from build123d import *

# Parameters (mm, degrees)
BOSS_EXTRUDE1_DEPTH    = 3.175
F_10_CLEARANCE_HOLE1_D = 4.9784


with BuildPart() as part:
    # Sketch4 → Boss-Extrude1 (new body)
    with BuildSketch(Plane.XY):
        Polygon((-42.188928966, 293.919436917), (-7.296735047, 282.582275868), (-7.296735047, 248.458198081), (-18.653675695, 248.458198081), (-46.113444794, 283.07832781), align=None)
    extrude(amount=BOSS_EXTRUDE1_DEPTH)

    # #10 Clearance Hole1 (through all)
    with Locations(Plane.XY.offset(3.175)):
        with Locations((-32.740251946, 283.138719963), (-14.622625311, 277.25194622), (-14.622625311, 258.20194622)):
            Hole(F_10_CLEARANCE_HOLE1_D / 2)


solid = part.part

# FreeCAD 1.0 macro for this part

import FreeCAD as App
import Part
import Sketcher
Q = App.Units.Quantity


def add_polygon(sketch, points):
    """Adds a closed chain of lines whose ends are joined by coincident constraints."""
    first, n = sketch.GeometryCount, len(points)
    for a, b in zip(points, points[1:] + points[:1]):
        sketch.addGeometry(Part.LineSegment(App.Vector(*a, 0), App.Vector(*b, 0)), False)
    for i in range(n):
        sketch.addConstraint(Sketcher.Constraint("Coincident", first + i, 2, first + (i + 1) % n, 1))

doc = App.newDocument("Part")
params = doc.addObject("Spreadsheet::Sheet", "Params")
for row, (alias, value) in enumerate([
    ("pad1_length", "0.125 in"),
    ("sketch2_diameter", "0.196 in"),
    ("hole_diameter", "0.196 in"),
], start=1):
    params.set(f"A{row}", alias)
    params.set(f"B{row}", "=" + value)
    params.setAlias(f"B{row}", alias)

body = doc.addObject("PartDesign::Body", "Body")

# Sketch on XY plane
sketch1 = body.newObject("Sketcher::SketchObject", "Sketch")
sketch1.AttachmentSupport = (doc.getObject("XY_Plane"), [""])
sketch1.MapMode = "FlatFace"
add_polygon(sketch1, [(-7, 283), (-42, 294), (-46, 283), (-19, 248), (-7, 248)])  # lines 0-4
sketch1.addConstraint([
    Sketcher.Constraint("Horizontal", 3),
    Sketcher.Constraint("Vertical", 4),
    Sketcher.Constraint("Angle", 0, Q("162 deg")),
    Sketcher.Constraint("DistanceX", 3, 1, 3, 2, 11.356941),
    Sketcher.Constraint("DistanceY", -1, 1, 2, 2, 248.458198),
    Sketcher.Constraint("Distance", 1, 11.529591),
    Sketcher.Constraint("DistanceY", 4, 1, 4, 2, 34.124078),
    Sketcher.Constraint("DistanceX", 0, 2, -1, 1, 42.188929),
    Sketcher.Constraint("DistanceY", 1, 2, 0, 2, 10.841109),
    Sketcher.Constraint("DistanceX", 1, 2, 2, 2, 27.459769),
])
pad1 = body.newObject("PartDesign::Pad", "Pad")
pad1.Profile = sketch1
pad1.setExpression("Length", "Params.pad1_length")

# Sketch on XY plane
sketch2 = body.newObject("Sketcher::SketchObject", "Sketch001")
sketch2.AttachmentSupport = (doc.getObject("XY_Plane"), [""])
sketch2.MapMode = "FlatFace"
sketch2.AttachmentOffset = App.Placement(App.Vector(0, 0, 0.125 * 25.4), App.Rotation())
sketch2.addGeometry([
    Part.Circle(App.Vector(-32.7, 283.1, 0), App.Vector(0, 0, 1), 2.5),
    Part.Circle(App.Vector(-14.6, 277.3, 0), App.Vector(0, 0, 1), 2.5),
    Part.Circle(App.Vector(-14.6, 258.2, 0), App.Vector(0, 0, 1), 2.5),
], False)
sketch2.addConstraint([
    Sketcher.Constraint("Equal", 0, 1),
    Sketcher.Constraint("Equal", 1, 2),
    Sketcher.Constraint("Vertical", 1, 3, 2, 3),
    Sketcher.Constraint("Diameter", 0, Q("0.196 in")),
    Sketcher.Constraint("DistanceY", 2, 3, 1, 3, Q("0.75 in")),
    Sketcher.Constraint("DistanceX", 0, 3, -1, 1, 32.740252),
    Sketcher.Constraint("DistanceY", -1, 1, 0, 3, 283.13872),
    Sketcher.Constraint("DistanceX", 1, 3, -1, 1, 14.622625),
    Sketcher.Constraint("DistanceY", -1, 1, 1, 3, 277.251946),
])
sketch2.setExpression("Constraints[3]", "Params.sketch2_diameter")
doc.recompute()
hole = body.newObject("PartDesign::Hole", "Hole")
hole.Profile = sketch2
hole.ThreadType = "None"
hole.setExpression("Diameter", "Params.hole_diameter")
hole.DepthType = "ThroughAll"

doc.recompute()
